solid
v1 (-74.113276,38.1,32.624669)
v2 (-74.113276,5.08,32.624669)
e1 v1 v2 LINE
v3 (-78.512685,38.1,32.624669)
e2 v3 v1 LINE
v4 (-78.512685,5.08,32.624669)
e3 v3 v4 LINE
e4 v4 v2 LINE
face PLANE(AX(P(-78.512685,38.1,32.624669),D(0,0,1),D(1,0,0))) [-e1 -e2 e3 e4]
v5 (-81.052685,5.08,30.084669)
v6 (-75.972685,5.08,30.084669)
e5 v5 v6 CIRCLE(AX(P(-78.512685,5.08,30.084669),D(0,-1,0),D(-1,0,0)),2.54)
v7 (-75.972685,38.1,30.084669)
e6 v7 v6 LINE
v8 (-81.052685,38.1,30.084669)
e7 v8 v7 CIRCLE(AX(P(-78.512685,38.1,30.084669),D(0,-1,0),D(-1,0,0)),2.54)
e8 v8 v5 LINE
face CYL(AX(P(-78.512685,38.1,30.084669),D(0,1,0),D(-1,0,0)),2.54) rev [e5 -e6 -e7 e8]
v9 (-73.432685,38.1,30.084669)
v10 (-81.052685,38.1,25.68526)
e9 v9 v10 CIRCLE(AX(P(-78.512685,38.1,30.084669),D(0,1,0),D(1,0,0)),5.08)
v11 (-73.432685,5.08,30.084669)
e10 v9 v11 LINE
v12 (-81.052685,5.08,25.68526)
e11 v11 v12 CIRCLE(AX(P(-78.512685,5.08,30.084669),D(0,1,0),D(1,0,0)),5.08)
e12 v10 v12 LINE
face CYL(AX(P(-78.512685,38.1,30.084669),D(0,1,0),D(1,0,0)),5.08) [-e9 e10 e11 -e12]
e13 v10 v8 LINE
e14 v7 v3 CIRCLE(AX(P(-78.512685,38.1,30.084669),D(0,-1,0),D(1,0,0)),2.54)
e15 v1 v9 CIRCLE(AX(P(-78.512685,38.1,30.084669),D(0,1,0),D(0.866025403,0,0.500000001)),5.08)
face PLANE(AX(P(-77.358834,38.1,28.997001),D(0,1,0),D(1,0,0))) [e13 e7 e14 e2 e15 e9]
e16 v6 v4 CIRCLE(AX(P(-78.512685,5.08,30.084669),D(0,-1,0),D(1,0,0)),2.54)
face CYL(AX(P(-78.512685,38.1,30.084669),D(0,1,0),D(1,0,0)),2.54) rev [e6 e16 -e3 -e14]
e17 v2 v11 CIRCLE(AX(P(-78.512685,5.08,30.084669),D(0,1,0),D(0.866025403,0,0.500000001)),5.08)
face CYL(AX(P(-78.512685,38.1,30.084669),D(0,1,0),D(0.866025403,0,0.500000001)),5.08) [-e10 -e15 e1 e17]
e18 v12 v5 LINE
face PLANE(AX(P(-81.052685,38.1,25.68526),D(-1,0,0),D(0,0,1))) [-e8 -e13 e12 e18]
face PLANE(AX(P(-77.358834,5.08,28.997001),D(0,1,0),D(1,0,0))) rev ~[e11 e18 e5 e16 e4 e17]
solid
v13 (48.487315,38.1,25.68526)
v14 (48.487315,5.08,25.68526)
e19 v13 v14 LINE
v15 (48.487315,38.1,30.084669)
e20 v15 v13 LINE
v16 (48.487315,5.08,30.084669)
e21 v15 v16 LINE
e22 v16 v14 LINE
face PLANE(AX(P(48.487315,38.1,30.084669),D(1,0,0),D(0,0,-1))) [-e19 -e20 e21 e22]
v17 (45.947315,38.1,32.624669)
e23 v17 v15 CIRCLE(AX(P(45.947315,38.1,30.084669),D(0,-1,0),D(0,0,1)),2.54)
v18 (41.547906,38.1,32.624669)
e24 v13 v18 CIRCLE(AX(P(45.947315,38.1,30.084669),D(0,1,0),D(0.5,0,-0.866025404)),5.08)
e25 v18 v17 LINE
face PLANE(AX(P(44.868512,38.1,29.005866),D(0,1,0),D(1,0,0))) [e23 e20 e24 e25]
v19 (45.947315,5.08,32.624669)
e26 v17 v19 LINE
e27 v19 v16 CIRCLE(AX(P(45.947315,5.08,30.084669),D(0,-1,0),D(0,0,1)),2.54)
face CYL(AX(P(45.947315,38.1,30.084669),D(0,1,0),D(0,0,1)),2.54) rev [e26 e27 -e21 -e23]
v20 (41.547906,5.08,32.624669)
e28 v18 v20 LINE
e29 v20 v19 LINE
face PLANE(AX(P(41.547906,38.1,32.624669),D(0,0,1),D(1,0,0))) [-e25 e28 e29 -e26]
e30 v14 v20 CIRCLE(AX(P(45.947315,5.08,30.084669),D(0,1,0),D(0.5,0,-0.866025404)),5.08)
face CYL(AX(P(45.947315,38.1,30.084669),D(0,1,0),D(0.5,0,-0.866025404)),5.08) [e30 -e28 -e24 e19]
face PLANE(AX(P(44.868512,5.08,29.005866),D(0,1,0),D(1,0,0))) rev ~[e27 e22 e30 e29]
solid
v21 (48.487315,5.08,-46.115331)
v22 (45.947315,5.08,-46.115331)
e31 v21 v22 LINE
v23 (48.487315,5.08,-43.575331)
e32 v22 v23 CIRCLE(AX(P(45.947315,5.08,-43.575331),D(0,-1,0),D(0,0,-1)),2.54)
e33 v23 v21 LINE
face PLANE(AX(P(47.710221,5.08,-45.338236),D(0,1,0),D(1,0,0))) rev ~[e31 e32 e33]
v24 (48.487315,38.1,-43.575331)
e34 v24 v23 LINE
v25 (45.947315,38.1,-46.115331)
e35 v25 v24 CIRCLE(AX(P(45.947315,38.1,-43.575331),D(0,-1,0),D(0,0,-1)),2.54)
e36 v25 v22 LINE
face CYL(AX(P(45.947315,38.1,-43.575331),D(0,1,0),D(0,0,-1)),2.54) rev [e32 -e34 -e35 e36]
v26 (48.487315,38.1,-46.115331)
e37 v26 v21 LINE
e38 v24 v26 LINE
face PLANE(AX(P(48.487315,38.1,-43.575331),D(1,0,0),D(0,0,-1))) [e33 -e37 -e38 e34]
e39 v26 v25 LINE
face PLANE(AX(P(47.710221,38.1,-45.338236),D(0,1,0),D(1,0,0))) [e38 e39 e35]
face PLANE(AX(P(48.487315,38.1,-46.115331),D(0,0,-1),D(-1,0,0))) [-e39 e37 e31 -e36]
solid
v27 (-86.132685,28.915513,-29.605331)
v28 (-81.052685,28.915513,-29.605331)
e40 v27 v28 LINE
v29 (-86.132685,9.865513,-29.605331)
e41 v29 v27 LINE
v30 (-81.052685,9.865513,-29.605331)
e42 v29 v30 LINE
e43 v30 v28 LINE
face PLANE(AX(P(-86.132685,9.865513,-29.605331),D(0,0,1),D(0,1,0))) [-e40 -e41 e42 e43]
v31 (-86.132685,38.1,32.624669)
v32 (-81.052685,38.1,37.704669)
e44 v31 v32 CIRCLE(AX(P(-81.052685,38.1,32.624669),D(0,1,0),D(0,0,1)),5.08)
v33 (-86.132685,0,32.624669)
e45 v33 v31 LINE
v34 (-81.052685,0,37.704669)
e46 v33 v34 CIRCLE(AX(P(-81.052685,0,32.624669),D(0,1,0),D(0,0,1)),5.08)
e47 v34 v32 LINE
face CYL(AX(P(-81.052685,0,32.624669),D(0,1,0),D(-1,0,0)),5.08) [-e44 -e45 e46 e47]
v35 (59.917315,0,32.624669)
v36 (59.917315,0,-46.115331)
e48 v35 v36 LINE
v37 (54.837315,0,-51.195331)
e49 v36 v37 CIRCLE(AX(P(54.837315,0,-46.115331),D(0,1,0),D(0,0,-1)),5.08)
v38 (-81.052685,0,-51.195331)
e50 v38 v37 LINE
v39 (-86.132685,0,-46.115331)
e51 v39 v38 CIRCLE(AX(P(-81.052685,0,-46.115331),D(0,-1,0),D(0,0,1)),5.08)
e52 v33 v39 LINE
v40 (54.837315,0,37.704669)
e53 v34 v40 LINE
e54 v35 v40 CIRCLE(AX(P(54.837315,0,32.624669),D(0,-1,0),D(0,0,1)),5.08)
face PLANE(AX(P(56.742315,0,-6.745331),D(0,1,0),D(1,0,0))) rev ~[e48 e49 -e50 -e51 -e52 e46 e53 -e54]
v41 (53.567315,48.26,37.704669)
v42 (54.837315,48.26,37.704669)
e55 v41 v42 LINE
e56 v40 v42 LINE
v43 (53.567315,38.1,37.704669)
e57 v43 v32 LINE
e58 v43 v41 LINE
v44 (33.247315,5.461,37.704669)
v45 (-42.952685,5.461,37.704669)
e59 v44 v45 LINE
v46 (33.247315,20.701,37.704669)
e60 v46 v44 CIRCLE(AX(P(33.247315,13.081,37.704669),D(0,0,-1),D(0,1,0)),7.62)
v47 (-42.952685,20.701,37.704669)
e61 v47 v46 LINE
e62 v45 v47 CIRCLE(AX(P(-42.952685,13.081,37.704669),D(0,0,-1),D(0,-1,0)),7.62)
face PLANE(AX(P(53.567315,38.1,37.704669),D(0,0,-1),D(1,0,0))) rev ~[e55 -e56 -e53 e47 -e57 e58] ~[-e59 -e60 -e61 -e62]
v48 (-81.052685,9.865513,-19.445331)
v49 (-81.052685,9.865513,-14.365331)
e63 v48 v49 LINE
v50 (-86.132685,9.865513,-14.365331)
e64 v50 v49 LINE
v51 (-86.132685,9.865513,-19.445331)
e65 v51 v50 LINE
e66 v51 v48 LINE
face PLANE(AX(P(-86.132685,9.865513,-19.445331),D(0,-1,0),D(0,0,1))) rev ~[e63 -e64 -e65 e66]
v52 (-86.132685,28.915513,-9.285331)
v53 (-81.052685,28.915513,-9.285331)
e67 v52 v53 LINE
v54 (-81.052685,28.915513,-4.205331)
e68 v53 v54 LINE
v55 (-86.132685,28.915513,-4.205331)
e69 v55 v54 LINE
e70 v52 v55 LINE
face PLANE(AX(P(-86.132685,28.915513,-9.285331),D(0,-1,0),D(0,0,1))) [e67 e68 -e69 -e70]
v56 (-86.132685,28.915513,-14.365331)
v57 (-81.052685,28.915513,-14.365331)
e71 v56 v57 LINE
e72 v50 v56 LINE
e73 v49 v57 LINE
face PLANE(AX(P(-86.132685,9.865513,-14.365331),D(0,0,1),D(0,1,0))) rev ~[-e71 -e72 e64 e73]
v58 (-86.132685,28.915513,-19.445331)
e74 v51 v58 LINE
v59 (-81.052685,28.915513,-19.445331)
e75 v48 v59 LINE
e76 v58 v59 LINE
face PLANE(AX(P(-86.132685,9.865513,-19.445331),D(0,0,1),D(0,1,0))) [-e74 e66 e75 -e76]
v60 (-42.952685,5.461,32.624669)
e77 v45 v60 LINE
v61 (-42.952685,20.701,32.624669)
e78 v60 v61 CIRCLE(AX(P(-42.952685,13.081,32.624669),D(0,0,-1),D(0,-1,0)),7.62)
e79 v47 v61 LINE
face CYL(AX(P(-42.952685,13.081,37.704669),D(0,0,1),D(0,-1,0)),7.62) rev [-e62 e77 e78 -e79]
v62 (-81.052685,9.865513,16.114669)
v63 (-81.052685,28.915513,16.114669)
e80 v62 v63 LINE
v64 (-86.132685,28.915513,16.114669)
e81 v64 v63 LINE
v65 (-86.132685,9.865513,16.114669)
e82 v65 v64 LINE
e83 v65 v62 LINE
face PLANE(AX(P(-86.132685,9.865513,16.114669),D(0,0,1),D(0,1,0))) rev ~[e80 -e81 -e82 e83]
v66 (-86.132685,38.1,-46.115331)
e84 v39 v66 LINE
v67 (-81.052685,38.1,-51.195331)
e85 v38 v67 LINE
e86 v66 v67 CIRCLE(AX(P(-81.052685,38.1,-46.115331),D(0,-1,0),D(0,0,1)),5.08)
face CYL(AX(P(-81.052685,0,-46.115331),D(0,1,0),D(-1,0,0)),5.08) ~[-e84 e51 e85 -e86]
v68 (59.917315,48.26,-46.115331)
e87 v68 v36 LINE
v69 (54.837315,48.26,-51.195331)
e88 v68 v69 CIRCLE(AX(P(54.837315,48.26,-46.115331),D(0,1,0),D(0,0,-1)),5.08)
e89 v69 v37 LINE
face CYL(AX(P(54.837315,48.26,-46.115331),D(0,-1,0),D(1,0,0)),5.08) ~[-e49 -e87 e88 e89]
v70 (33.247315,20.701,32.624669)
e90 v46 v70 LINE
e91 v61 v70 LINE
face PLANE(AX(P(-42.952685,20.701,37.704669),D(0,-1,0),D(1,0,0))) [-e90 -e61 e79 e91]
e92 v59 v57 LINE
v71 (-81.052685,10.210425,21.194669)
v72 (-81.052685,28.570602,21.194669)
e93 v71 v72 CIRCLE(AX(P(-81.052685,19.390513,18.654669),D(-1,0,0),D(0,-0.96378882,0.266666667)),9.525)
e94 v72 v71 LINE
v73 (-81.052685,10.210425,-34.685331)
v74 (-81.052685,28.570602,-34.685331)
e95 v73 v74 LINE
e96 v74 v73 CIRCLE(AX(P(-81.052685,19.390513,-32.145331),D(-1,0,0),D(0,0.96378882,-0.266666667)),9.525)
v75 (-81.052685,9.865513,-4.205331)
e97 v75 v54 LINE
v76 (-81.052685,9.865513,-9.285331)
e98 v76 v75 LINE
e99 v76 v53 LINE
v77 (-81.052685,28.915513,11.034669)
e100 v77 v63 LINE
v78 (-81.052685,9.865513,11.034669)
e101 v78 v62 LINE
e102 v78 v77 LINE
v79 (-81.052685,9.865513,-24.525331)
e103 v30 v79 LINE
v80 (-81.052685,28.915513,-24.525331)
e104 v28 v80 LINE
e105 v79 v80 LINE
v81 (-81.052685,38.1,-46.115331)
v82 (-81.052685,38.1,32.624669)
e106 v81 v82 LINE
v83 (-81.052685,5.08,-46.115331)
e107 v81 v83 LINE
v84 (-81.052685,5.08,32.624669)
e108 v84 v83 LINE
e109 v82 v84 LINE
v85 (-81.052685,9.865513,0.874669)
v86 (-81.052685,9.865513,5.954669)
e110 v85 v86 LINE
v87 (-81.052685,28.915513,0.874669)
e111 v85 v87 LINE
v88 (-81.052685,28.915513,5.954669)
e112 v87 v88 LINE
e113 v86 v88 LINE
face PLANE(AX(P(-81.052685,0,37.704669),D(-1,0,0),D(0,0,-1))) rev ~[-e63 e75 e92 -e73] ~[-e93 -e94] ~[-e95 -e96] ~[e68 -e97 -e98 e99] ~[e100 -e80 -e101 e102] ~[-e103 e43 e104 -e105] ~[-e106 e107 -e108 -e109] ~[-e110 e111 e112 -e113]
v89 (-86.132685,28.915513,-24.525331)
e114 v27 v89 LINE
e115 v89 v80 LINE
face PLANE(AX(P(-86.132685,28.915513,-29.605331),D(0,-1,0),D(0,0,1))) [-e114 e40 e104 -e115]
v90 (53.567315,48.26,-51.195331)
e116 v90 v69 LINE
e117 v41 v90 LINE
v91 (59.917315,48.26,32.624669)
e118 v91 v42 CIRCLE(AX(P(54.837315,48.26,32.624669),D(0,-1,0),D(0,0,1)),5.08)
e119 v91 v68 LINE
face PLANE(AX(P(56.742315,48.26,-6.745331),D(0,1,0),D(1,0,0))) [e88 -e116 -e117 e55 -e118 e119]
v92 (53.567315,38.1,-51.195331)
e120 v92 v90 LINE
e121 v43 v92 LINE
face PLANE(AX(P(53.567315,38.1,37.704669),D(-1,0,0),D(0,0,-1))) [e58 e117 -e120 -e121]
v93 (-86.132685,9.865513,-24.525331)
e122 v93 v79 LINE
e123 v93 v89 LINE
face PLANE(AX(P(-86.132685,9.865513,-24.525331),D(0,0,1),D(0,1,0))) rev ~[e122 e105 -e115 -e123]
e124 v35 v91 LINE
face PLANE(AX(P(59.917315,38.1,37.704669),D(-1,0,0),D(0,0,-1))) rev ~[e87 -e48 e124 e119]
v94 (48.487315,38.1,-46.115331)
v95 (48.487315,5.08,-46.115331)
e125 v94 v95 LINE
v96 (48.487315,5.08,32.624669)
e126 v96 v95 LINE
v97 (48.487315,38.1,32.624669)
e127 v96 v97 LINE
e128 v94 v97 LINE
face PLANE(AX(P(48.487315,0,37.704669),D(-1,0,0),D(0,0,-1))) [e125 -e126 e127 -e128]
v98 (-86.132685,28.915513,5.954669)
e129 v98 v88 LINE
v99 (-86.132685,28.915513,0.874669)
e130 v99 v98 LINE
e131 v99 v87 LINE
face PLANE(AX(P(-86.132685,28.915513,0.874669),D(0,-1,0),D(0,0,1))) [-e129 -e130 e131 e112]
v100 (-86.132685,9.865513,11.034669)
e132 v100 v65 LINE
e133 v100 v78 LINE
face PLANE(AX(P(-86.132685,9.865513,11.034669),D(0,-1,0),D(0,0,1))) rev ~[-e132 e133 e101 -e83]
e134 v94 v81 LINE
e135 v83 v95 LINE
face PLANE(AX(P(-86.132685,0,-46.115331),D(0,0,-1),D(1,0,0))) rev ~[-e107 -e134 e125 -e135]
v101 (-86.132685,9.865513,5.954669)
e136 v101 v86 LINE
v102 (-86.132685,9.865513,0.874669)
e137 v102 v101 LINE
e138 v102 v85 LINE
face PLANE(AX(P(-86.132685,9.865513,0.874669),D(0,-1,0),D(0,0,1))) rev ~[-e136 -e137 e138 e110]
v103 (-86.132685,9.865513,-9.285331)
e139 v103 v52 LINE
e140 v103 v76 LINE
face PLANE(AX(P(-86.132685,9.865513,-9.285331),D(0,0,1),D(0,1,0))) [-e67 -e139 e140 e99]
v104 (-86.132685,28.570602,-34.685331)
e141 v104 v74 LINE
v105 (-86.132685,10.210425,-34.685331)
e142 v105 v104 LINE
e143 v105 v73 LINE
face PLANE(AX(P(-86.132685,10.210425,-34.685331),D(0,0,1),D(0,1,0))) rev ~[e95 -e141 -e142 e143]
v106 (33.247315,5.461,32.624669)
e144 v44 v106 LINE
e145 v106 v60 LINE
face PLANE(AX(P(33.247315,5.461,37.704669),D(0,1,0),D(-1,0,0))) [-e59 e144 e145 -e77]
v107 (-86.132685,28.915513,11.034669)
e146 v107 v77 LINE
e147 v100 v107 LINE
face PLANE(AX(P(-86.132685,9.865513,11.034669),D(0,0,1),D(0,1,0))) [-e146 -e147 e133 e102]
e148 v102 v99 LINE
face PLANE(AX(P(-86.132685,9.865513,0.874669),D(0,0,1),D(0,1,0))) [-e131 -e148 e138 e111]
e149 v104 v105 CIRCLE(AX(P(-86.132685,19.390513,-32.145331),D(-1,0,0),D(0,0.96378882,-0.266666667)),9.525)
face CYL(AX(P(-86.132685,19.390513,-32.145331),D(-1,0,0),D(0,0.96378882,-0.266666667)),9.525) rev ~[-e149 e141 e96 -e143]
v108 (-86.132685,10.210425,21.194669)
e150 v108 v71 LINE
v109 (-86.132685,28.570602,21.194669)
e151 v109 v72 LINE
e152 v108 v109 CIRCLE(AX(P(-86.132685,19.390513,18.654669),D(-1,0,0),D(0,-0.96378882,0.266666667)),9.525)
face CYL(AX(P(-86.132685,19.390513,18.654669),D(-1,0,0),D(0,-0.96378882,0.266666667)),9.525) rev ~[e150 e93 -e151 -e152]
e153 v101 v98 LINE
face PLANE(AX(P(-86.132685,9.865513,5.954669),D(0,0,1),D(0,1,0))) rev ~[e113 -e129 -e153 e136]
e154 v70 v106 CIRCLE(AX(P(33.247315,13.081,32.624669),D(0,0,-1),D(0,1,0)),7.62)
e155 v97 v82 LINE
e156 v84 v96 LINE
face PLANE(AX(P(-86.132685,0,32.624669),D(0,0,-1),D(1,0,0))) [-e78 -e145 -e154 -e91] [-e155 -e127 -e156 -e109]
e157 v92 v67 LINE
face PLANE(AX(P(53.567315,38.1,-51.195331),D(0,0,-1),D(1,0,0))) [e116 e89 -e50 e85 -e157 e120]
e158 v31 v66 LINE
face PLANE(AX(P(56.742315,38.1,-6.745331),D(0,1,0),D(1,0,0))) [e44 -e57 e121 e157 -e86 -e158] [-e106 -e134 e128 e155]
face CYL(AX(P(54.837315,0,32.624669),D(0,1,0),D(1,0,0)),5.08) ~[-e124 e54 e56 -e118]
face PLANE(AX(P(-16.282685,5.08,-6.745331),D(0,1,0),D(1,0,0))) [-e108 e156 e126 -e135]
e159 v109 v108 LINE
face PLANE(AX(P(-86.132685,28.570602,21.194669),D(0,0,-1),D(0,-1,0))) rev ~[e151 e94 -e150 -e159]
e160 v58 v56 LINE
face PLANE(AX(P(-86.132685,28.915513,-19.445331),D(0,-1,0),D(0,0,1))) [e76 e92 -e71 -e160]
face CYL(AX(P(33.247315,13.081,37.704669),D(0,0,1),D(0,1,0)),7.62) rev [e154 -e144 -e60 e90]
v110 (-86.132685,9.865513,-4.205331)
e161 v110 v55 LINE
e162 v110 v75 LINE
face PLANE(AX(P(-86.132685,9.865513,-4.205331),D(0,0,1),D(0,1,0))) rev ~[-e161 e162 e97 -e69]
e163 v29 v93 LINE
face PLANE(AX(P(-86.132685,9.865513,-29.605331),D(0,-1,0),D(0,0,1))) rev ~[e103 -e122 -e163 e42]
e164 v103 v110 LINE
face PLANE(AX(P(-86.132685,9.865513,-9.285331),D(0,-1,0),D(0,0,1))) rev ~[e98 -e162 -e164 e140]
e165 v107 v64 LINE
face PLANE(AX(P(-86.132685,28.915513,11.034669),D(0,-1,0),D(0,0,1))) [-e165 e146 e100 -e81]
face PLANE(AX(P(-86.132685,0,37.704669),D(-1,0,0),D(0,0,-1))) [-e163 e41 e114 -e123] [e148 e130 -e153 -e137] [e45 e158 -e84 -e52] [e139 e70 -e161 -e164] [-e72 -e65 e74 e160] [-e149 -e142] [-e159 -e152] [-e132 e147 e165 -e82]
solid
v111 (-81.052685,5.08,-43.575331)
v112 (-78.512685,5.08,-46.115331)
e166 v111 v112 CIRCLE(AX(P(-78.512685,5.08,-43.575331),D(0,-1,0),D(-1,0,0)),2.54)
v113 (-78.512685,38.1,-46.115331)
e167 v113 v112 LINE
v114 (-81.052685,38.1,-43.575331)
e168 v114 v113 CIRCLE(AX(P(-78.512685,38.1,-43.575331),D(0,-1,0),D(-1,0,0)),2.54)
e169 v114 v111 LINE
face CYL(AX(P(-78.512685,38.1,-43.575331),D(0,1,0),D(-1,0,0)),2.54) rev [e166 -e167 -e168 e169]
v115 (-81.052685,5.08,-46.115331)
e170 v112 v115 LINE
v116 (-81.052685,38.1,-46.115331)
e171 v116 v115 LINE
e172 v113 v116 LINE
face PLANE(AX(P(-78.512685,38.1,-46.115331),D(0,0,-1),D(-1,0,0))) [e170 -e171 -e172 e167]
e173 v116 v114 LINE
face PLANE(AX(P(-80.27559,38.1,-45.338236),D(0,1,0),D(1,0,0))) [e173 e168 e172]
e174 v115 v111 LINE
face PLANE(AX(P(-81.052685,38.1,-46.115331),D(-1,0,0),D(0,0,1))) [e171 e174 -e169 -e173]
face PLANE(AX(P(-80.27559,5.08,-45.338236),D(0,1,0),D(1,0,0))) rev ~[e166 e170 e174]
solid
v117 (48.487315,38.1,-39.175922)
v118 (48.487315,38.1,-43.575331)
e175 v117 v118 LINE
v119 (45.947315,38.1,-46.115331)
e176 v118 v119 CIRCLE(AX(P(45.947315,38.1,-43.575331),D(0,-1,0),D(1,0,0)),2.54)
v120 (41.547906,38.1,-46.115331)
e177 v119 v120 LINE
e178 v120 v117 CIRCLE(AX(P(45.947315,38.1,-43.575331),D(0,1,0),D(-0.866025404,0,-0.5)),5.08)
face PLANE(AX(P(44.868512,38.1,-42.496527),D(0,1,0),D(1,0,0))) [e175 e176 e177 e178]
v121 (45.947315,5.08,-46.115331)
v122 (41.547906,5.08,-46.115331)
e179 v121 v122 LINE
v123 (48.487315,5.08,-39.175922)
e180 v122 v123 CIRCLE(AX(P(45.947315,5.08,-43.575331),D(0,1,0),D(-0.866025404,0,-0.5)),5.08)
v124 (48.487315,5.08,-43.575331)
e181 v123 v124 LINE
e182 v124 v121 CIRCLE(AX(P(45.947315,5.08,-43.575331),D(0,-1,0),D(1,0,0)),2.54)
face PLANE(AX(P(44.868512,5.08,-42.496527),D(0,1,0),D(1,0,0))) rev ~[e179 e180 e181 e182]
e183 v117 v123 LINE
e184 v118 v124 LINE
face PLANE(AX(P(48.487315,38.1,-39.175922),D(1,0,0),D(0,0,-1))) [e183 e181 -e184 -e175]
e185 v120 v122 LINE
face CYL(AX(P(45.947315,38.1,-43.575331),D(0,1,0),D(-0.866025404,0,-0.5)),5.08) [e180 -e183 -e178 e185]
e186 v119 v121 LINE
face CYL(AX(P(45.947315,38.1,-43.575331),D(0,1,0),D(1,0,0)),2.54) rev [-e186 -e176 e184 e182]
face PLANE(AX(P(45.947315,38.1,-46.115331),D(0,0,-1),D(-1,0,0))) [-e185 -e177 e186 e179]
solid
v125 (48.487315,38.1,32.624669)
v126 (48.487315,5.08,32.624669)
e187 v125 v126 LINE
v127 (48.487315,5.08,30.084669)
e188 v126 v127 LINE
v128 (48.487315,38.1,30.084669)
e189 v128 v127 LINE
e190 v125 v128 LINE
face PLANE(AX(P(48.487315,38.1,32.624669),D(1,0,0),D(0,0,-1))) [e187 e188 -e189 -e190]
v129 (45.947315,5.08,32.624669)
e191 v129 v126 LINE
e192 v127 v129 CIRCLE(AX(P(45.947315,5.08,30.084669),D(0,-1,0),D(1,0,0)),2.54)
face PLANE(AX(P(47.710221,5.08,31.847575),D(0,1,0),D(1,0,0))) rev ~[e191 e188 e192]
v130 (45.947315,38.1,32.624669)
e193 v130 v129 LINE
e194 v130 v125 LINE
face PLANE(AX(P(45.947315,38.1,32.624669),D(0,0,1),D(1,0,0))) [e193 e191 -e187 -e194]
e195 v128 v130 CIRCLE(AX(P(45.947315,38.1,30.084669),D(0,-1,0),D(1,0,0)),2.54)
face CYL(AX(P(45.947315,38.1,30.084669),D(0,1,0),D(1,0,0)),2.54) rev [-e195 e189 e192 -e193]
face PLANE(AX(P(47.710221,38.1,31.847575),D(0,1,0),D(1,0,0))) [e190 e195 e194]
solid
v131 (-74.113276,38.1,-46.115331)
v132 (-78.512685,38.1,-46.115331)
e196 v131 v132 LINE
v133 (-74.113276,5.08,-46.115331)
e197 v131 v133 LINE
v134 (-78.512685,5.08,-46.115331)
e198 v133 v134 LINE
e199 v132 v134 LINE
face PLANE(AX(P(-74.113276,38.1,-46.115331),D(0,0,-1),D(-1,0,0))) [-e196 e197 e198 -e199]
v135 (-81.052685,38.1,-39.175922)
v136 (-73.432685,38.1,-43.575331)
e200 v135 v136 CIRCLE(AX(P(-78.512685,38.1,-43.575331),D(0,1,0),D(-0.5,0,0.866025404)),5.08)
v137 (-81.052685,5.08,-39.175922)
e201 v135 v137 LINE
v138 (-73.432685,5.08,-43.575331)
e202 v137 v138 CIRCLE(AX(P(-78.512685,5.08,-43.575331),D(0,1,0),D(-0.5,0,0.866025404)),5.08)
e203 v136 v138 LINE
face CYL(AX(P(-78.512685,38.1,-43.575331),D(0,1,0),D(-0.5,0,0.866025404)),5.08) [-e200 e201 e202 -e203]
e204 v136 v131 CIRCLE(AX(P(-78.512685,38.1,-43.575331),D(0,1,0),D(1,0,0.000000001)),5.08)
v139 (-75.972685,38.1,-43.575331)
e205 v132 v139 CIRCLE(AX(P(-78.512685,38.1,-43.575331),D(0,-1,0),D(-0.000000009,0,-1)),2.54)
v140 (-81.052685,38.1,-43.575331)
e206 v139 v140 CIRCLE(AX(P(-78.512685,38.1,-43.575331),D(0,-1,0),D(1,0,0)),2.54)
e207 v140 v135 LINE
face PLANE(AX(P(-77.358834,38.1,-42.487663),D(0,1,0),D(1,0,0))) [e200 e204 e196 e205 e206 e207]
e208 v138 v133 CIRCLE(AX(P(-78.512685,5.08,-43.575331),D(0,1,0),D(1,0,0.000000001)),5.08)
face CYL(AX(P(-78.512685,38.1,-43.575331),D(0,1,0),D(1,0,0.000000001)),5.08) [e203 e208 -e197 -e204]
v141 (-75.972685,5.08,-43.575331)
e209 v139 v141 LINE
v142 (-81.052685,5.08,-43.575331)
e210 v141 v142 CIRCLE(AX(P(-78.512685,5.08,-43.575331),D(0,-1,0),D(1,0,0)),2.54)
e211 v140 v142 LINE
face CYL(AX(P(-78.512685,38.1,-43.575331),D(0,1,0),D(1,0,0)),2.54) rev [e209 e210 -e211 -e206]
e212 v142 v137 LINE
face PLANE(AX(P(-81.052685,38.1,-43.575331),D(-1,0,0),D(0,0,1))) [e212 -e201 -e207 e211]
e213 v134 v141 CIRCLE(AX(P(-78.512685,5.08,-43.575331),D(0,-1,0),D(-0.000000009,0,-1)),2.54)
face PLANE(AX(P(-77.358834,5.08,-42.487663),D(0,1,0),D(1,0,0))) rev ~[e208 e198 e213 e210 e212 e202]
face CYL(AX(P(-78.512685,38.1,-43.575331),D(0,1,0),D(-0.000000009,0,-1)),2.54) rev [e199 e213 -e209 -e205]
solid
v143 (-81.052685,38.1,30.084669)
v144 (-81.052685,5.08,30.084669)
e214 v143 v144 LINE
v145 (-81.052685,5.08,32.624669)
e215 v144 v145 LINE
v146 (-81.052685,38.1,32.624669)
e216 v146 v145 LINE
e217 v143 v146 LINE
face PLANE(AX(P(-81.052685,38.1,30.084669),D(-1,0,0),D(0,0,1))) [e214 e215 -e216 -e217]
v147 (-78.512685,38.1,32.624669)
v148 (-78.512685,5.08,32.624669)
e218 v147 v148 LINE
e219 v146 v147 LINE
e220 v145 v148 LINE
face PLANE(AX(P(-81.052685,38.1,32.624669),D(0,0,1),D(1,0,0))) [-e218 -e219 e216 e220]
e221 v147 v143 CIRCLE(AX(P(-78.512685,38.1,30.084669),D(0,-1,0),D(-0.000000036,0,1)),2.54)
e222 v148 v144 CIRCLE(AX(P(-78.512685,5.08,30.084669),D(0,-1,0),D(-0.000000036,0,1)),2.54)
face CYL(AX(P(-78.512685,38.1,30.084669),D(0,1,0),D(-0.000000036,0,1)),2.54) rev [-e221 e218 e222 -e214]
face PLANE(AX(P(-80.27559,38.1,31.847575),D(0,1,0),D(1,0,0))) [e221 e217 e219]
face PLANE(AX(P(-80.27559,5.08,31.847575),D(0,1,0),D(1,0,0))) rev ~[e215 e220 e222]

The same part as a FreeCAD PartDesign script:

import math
import FreeCAD as App
import Part
import Sketcher
from FreeCAD import Vector
Q = App.Units.Quantity


def edges_at(feature, points):
    """Names of the edges that pass closest to the given points."""
    edges = feature.Shape.Edges
    near = lambda p: min(range(len(edges)), key=lambda i: edges[i].distToShape(Part.Vertex(*p))[0])
    return sorted({f"Edge{near(p) + 1}" for p in points})


def faces_at(feature, points):
    """Names of the faces that lie closest to the given points."""
    faces = feature.Shape.Faces
    near = lambda p: min(range(len(faces)), key=lambda i: faces[i].distToShape(Part.Vertex(*p))[0])
    return sorted({f"Face{near(p) + 1}" for p in points})

doc = App.newDocument("Part")
body = doc.addObject("PartDesign::Body", "Body")

sketch1 = body.newObject("Sketcher::SketchObject", "Sketch")
sketch1.AttachmentSupport = (doc.getObject("XZ_Plane"), [""])
sketch1.MapMode = "FlatFace"
sketch1.addGeometry([
    Part.LineSegment(Vector(-86.132685, -51.195331, 0), Vector(-86.132685, 37.704669, 0)),
    Part.LineSegment(Vector(-86.132685, 37.704669, 0), Vector(53.567315, 37.704669, 0)),
    Part.LineSegment(Vector(53.567315, 37.704669, 0), Vector(53.567315, -51.195331, 0)),
    Part.LineSegment(Vector(53.567315, -51.195331, 0), Vector(-86.132685, -51.195331, 0)),
], False)
sketch1.addConstraint([
    Sketcher.Constraint("Coincident", 0, 2, 1, 1),
    Sketcher.Constraint("Coincident", 1, 2, 2, 1),
    Sketcher.Constraint("Coincident", 2, 2, 3, 1),
    Sketcher.Constraint("Coincident", 3, 2, 0, 1),
    Sketcher.Constraint("Vertical", 0),
    Sketcher.Constraint("Horizontal", 1),
    Sketcher.Constraint("Vertical", 2),
    Sketcher.Constraint("Horizontal", 3),
    Sketcher.Constraint("DistanceX", 1, 1, 1, 2, Q("5.5 in")),
    Sketcher.Constraint("DistanceY", 0, 1, 0, 2, Q("3.5 in")),
    Sketcher.Constraint("DistanceY", -1, 1, 0, 2, 37.704669),
    Sketcher.Constraint("DistanceX", 0, 2, -1, 1, 86.132685),
])
pad1 = body.newObject("PartDesign::Pad", "Pad")
pad1.Profile = sketch1
pad1.Length = Q("1.5 in")
pad1.Reversed = True
doc.recompute()

thickness = body.newObject("PartDesign::Thickness", "Thickness")
thickness.Base = (pad1, faces_at(pad1, [(-16.283, 38.1, -6.745)]))
thickness.Value = Q("0.2 in")
thickness.Reversed = True
thickness.Join = "Intersection"

sketch2 = body.newObject("Sketcher::SketchObject", "Sketch001")
sketch2.AttachmentSupport = (doc.getObject("YZ_Plane"), [""])
sketch2.MapMode = "FlatFace"
sketch2.AttachmentOffset = App.Placement(Vector(0, 0, -86.132685), App.Rotation())
sketch2.addGeometry([
    Part.LineSegment(Vector(10.210425, -34.685331, 0), Vector(28.570602, -34.685331, 0)),
    Part.ArcOfCircle(Part.Circle(Vector(19.390513, -32.145331, 0), Vector(0, 0, 1), 9.525), math.radians(-164.53399), math.radians(-15.46601)),
    Part.LineSegment(Vector(28.915513, -29.605331, 0), Vector(9.865513, -29.605331, 0)),
    Part.LineSegment(Vector(9.865513, -29.605331, 0), Vector(9.865513, -24.525331, 0)),
    Part.LineSegment(Vector(9.865513, -24.525331, 0), Vector(28.915513, -24.525331, 0)),
    Part.LineSegment(Vector(28.915513, -24.525331, 0), Vector(28.915513, -29.605331, 0)),
    Part.LineSegment(Vector(28.915513, -19.445331, 0), Vector(9.865513, -19.445331, 0)),
    Part.LineSegment(Vector(9.865513, -19.445331, 0), Vector(9.865513, -14.365331, 0)),
    Part.LineSegment(Vector(9.865513, -14.365331, 0), Vector(28.915513, -14.365331, 0)),
    Part.LineSegment(Vector(28.915513, -14.365331, 0), Vector(28.915513, -19.445331, 0)),
    Part.LineSegment(Vector(28.915513, -9.285331, 0), Vector(9.865513, -9.285331, 0)),
    Part.LineSegment(Vector(9.865513, -9.285331, 0), Vector(9.865513, -4.205331, 0)),
    Part.LineSegment(Vector(9.865513, -4.205331, 0), Vector(28.915513, -4.205331, 0)),
    Part.LineSegment(Vector(28.915513, -4.205331, 0), Vector(28.915513, -9.285331, 0)),
    Part.LineSegment(Vector(28.915513, 0.874669, 0), Vector(9.865513, 0.874669, 0)),
    Part.LineSegment(Vector(9.865513, 0.874669, 0), Vector(9.865513, 5.954669, 0)),
    Part.LineSegment(Vector(9.865513, 5.954669, 0), Vector(28.915513, 5.954669, 0)),
    Part.LineSegment(Vector(28.915513, 5.954669, 0), Vector(28.915513, 0.874669, 0)),
    Part.LineSegment(Vector(28.915513, 11.034669, 0), Vector(9.865513, 11.034669, 0)),
    Part.LineSegment(Vector(9.865513, 11.034669, 0), Vector(9.865513, 16.114669, 0)),
    Part.LineSegment(Vector(9.865513, 16.114669, 0), Vector(28.915513, 16.114669, 0)),
    Part.LineSegment(Vector(28.915513, 16.114669, 0), Vector(28.915513, 11.034669, 0)),
    Part.ArcOfCircle(Part.Circle(Vector(19.390513, 18.654669, 0), Vector(0, 0, 1), 9.525), math.radians(15.46601), math.radians(164.53399)),
    Part.LineSegment(Vector(28.570602, 21.194669, 0), Vector(10.210425, 21.194669, 0)),
], False)
sketch2.addConstraint([
    Sketcher.Constraint("Coincident", 0, 1, 1, 1),
    Sketcher.Constraint("Coincident", 1, 2, 0, 2),
    Sketcher.Constraint("Coincident", 2, 2, 3, 1),
    Sketcher.Constraint("Coincident", 3, 2, 4, 1),
    Sketcher.Constraint("Coincident", 4, 2, 5, 1),
    Sketcher.Constraint("Coincident", 5, 2, 2, 1),
    Sketcher.Constraint("Coincident", 6, 2, 7, 1),
    Sketcher.Constraint("Coincident", 7, 2, 8, 1),
    Sketcher.Constraint("Coincident", 8, 2, 9, 1),
    Sketcher.Constraint("Coincident", 9, 2, 6, 1),
    Sketcher.Constraint("Coincident", 10, 2, 11, 1),
    Sketcher.Constraint("Coincident", 11, 2, 12, 1),
    Sketcher.Constraint("Coincident", 12, 2, 13, 1),
    Sketcher.Constraint("Coincident", 13, 2, 10, 1),
    Sketcher.Constraint("Coincident", 14, 2, 15, 1),
    Sketcher.Constraint("Coincident", 15, 2, 16, 1),
    Sketcher.Constraint("Coincident", 16, 2, 17, 1),
    Sketcher.Constraint("Coincident", 17, 2, 14, 1),
    Sketcher.Constraint("Coincident", 18, 2, 19, 1),
    Sketcher.Constraint("Coincident", 19, 2, 20, 1),
    Sketcher.Constraint("Coincident", 20, 2, 21, 1),
    Sketcher.Constraint("Coincident", 21, 2, 18, 1),
    Sketcher.Constraint("Coincident", 22, 1, 23, 1),
    Sketcher.Constraint("Coincident", 23, 2, 22, 2),
    Sketcher.Constraint("Horizontal", 0),
    Sketcher.Constraint("Horizontal", 2),
    Sketcher.Constraint("Vertical", 3),
    Sketcher.Constraint("Horizontal", 4),
    Sketcher.Constraint("Vertical", 5),
    Sketcher.Constraint("Horizontal", 6),
    Sketcher.Constraint("Vertical", 7),
    Sketcher.Constraint("Horizontal", 8),
    Sketcher.Constraint("Vertical", 9),
    Sketcher.Constraint("Horizontal", 10),
    Sketcher.Constraint("Vertical", 11),
    Sketcher.Constraint("Horizontal", 12),
    Sketcher.Constraint("Vertical", 13),
    Sketcher.Constraint("Horizontal", 14),
    Sketcher.Constraint("Vertical", 15),
    Sketcher.Constraint("Horizontal", 16),
    Sketcher.Constraint("Vertical", 17),
    Sketcher.Constraint("Horizontal", 18),
    Sketcher.Constraint("Vertical", 19),
    Sketcher.Constraint("Horizontal", 20),
    Sketcher.Constraint("Vertical", 21),
    Sketcher.Constraint("Horizontal", 23),
    Sketcher.Constraint("Equal", 1, 22),
    Sketcher.Constraint("Vertical", 1, 3, 22, 3),
    Sketcher.Constraint("Vertical", 3, 2, 6, 2),
    Sketcher.Constraint("Vertical", 5, 2, 8, 2),
    Sketcher.Constraint("Vertical", 7, 2, 10, 2),
    Sketcher.Constraint("Vertical", 9, 2, 12, 2),
    Sketcher.Constraint("Vertical", 11, 2, 14, 2),
    Sketcher.Constraint("Vertical", 13, 2, 16, 2),
    Sketcher.Constraint("Vertical", 15, 2, 18, 2),
    Sketcher.Constraint("Vertical", 17, 2, 20, 2),
    Sketcher.Constraint("Vertical", 1, 2, 22, 1),
    Sketcher.Constraint("Equal", 5, 7),
    Sketcher.Constraint("Equal", 9, 11),
    Sketcher.Constraint("Equal", 13, 15),
    Sketcher.Constraint("Equal", 17, 19),
    Sketcher.Constraint("DistanceY", 3, 1, 3, 2, Q("0.2 in")),
    Sketcher.Constraint("Radius", 1, Q("0.375 in")),
    Sketcher.Constraint("DistanceY", 1, 3, 22, 3, Q("2 in")),
    Sketcher.Constraint("DistanceX", 2, 2, 2, 1, Q("0.75 in")),
    Sketcher.Constraint("DistanceY", 0, 1, 1, 3, Q("0.1 in")),
    Sketcher.Constraint("DistanceY", 0, 1, 2, 2, Q("0.2 in")),
    Sketcher.Constraint("DistanceY", 3, 2, 6, 2, Q("0.2 in")),
    Sketcher.Constraint("DistanceY", 7, 2, 10, 2, Q("0.2 in")),
    Sketcher.Constraint("DistanceY", 11, 2, 14, 2, Q("0.2 in")),
    Sketcher.Constraint("DistanceY", 15, 2, 18, 2, Q("0.2 in")),
    Sketcher.Constraint("DistanceX", 2, 2, 1, 3, Q("0.375 in")),
    Sketcher.Constraint("DistanceX", -1, 1, 1, 2, 28.570602),
    Sketcher.Constraint("DistanceY", 1, 3, -1, 1, 32.145331),
])
pocket1 = body.newObject("PartDesign::Pocket", "Pocket")
pocket1.Profile = sketch2
pocket1.Length = Q("0.2 in")
pocket1.Reversed = True

sketch3 = body.newObject("Sketcher::SketchObject", "Sketch002")
sketch3.AttachmentSupport = (doc.getObject("XY_Plane"), [""])
sketch3.MapMode = "FlatFace"
sketch3.AttachmentOffset = App.Placement(Vector(0, 0, 37.704669), App.Rotation())
sketch3.addGeometry([
    Part.LineSegment(Vector(-42.952685, 5.461, 0), Vector(33.247315, 5.461, 0)),
    Part.ArcOfCircle(Part.Circle(Vector(33.247315, 13.081, 0), Vector(0, 0, 1), 7.62), math.radians(-90), math.radians(90)),
    Part.LineSegment(Vector(33.247315, 20.701, 0), Vector(-42.952685, 20.701, 0)),
    Part.ArcOfCircle(Part.Circle(Vector(-42.952685, 13.081, 0), Vector(0, 0, 1), 7.62), math.radians(90), math.radians(270)),
], False)
sketch3.addConstraint([
    Sketcher.Constraint("Tangent", 0, 2, 1, 1),
    Sketcher.Constraint("Tangent", 1, 2, 2, 1),
    Sketcher.Constraint("Tangent", 2, 2, 3, 1),
    Sketcher.Constraint("Tangent", 3, 2, 0, 1),
    Sketcher.Constraint("Horizontal", 0),
    Sketcher.Constraint("Horizontal", 2),
    Sketcher.Constraint("Radius", 1, Q("0.3 in")),
    Sketcher.Constraint("DistanceX", 0, 1, 0, 2, Q("3 in")),
    Sketcher.Constraint("DistanceY", -1, 1, 1, 3, Q("0.515 in")),
    Sketcher.Constraint("DistanceX", -1, 1, 1, 3, 33.247315),
])
pocket2 = body.newObject("PartDesign::Pocket", "Pocket001")
pocket2.Profile = sketch3
pocket2.Length = Q("0.2 in")

sketch4 = body.newObject("Sketcher::SketchObject", "Sketch003")
sketch4.AttachmentSupport = (doc.getObject("XZ_Plane"), [""])
sketch4.MapMode = "FlatFace"
sketch4.AttachmentOffset = App.Placement(Vector(0, 0, -1.5 * 25.4), App.Rotation())
sketch4.addGeometry([
    Part.LineSegment(Vector(53.567315, -51.195331, 0), Vector(53.567315, 37.704669, 0)),
    Part.LineSegment(Vector(53.567315, 37.704669, 0), Vector(59.917315, 37.704669, 0)),
    Part.LineSegment(Vector(59.917315, 37.704669, 0), Vector(59.917315, -51.195331, 0)),
    Part.LineSegment(Vector(59.917315, -51.195331, 0), Vector(53.567315, -51.195331, 0)),
], False)
sketch4.addConstraint([
    Sketcher.Constraint("Coincident", 0, 2, 1, 1),
    Sketcher.Constraint("Coincident", 1, 2, 2, 1),
    Sketcher.Constraint("Coincident", 2, 2, 3, 1),
    Sketcher.Constraint("Coincident", 3, 2, 0, 1),
    Sketcher.Constraint("Vertical", 0),
    Sketcher.Constraint("Horizontal", 1),
    Sketcher.Constraint("Vertical", 2),
    Sketcher.Constraint("Horizontal", 3),
    Sketcher.Constraint("DistanceY", 0, 1, 0, 2, Q("3.5 in")),
    Sketcher.Constraint("DistanceX", 1, 1, 1, 2, Q("0.25 in")),
    Sketcher.Constraint("DistanceY", -1, 1, 0, 2, 37.704669),
    Sketcher.Constraint("DistanceX", -1, 1, 0, 2, 53.567315),
])
pad2 = body.newObject("PartDesign::Pad", "Pad001")
pad2.Profile = sketch4
pad2.Length = Q("1.5 in")

sketch5 = body.newObject("Sketcher::SketchObject", "Sketch004")
sketch5.AttachmentSupport = (doc.getObject("XZ_Plane"), [""])
sketch5.MapMode = "FlatFace"
sketch5.AttachmentOffset = App.Placement(Vector(0, 0, -1.5 * 25.4), App.Rotation())
sketch5.addGeometry([
    Part.LineSegment(Vector(53.567315, -51.195331, 0), Vector(53.567315, 37.704669, 0)),
    Part.LineSegment(Vector(53.567315, 37.704669, 0), Vector(59.917315, 37.704669, 0)),
    Part.LineSegment(Vector(59.917315, 37.704669, 0), Vector(59.917315, -51.195331, 0)),
    Part.LineSegment(Vector(59.917315, -51.195331, 0), Vector(53.567315, -51.195331, 0)),
], False)
sketch5.addConstraint([
    Sketcher.Constraint("Coincident", 0, 2, 1, 1),
    Sketcher.Constraint("Coincident", 1, 2, 2, 1),
    Sketcher.Constraint("Coincident", 2, 2, 3, 1),
    Sketcher.Constraint("Coincident", 3, 2, 0, 1),
    Sketcher.Constraint("Vertical", 0),
    Sketcher.Constraint("Horizontal", 1),
    Sketcher.Constraint("Vertical", 2),
    Sketcher.Constraint("Horizontal", 3),
    Sketcher.Constraint("DistanceY", 0, 1, 0, 2, Q("3.5 in")),
    Sketcher.Constraint("DistanceX", 1, 1, 1, 2, Q("0.25 in")),
    Sketcher.Constraint("DistanceY", -1, 1, 0, 2, 37.704669),
    Sketcher.Constraint("DistanceX", -1, 1, 0, 2, 53.567315),
])
pad3 = body.newObject("PartDesign::Pad", "Pad002")
pad3.Profile = sketch5
pad3.Length = Q("0.4 in")
pad3.Reversed = True
doc.recompute()

fillet = body.newObject("PartDesign::Fillet", "Fillet")
fillet.Base = (pad3, edges_at(pad3, [
    (59.917, 24.13, -51.195),
    (59.917, 24.13, 37.705),
    (-86.133, 19.05, -51.195),
    (-86.133, 19.05, 37.705),
]))
fillet.Radius = Q("0.2 in")
body2 = doc.addObject("PartDesign::Body", "Body001")

sketch6 = body2.newObject("Sketcher::SketchObject", "Sketch005")
sketch6.AttachmentSupport = (doc.getObject("XZ_Plane001"), [""])
sketch6.MapMode = "FlatFace"
sketch6.AttachmentOffset = App.Placement(Vector(0, 0, -1.5 * 25.4), App.Rotation())
sketch6.addGeometry([
    Part.LineSegment(Vector(48.487315, -46.115331, 0), Vector(45.947315, -46.115331, 0)),
    Part.ArcOfCircle(Part.Circle(Vector(45.947315, -43.575331, 0), Vector(0, 0, 1), 2.54), math.radians(-90), math.radians(0)),
    Part.LineSegment(Vector(48.487315, -43.575331, 0), Vector(48.487315, -46.115331, 0)),
], False)
sketch6.addConstraint([
    Sketcher.Constraint("Tangent", 0, 2, 1, 1),
    Sketcher.Constraint("Tangent", 1, 2, 2, 1),
    Sketcher.Constraint("Coincident", 2, 2, 0, 1),
    Sketcher.Constraint("Horizontal", 0),
    Sketcher.Constraint("Vertical", 2),
    Sketcher.Constraint("Radius", 1, Q("0.1 in")),
    Sketcher.Constraint("DistanceY", 1, 3, -1, 1, 43.575331),
    Sketcher.Constraint("DistanceX", -1, 1, 1, 3, 45.947315),
])
pad4 = body2.newObject("PartDesign::Pad", "Pad003")
pad4.Profile = sketch6
pad4.Length = Q("1.3 in")
body3 = doc.addObject("PartDesign::Body", "Body002")

sketch7 = body3.newObject("Sketcher::SketchObject", "Sketch006")
sketch7.AttachmentSupport = (doc.getObject("XZ_Plane002"), [""])
sketch7.MapMode = "FlatFace"
sketch7.AttachmentOffset = App.Placement(Vector(0, 0, -1.5 * 25.4), App.Rotation())
sketch7.addGeometry([
    Part.LineSegment(Vector(45.947315, -46.115331, 0), Vector(41.547906, -46.115331, 0)),
    Part.ArcOfCircle(Part.Circle(Vector(45.947315, -43.575331, 0), Vector(0, 0, 1), 5.08), math.radians(60), math.radians(210)),
    Part.LineSegment(Vector(48.487315, -39.175922, 0), Vector(48.487315, -43.575331, 0)),
    Part.ArcOfCircle(Part.Circle(Vector(45.947315, -43.575331, 0), Vector(0, 0, 1), 2.54), math.radians(0), math.radians(270)),
], False)
sketch7.addConstraint([
    Sketcher.Constraint("Coincident", 0, 2, 1, 2),
    Sketcher.Constraint("Coincident", 1, 1, 2, 1),
    Sketcher.Constraint("Tangent", 2, 2, 3, 1),
    Sketcher.Constraint("Tangent", 3, 2, 0, 1),
    Sketcher.Constraint("Horizontal", 0),
    Sketcher.Constraint("Vertical", 2),
    Sketcher.Constraint("Coincident", 3, 3, 1, 3),
    Sketcher.Constraint("Radius", 1, Q("0.2 in")),
    Sketcher.Constraint("Radius", 3, Q("0.1 in")),
    Sketcher.Constraint("DistanceY", 1, 3, -1, 1, 43.575331),
    Sketcher.Constraint("DistanceX", -1, 1, 1, 3, 45.947315),
])
pad5 = body3.newObject("PartDesign::Pad", "Pad004")
pad5.Profile = sketch7
pad5.Length = Q("1.3 in")
body4 = doc.addObject("PartDesign::Body", "Body003")

sketch8 = body4.newObject("Sketcher::SketchObject", "Sketch007")
sketch8.AttachmentSupport = (doc.getObject("XZ_Plane003"), [""])
sketch8.MapMode = "FlatFace"
sketch8.AttachmentOffset = App.Placement(Vector(0, 0, -1.5 * 25.4), App.Rotation())
sketch8.addGeometry([
    Part.LineSegment(Vector(48.487315, 32.624669, 0), Vector(48.487315, 30.084669, 0)),
    Part.ArcOfCircle(Part.Circle(Vector(45.947315, 30.084669, 0), Vector(0, 0, 1), 2.54), math.radians(0), math.radians(90)),
    Part.LineSegment(Vector(45.947315, 32.624669, 0), Vector(48.487315, 32.624669, 0)),
], False)
sketch8.addConstraint([
    Sketcher.Constraint("Tangent", 0, 2, 1, 1),
    Sketcher.Constraint("Tangent", 1, 2, 2, 1),
    Sketcher.Constraint("Coincident", 2, 2, 0, 1),
    Sketcher.Constraint("Vertical", 0),
    Sketcher.Constraint("Horizontal", 2),
    Sketcher.Constraint("Radius", 1, Q("0.1 in")),
    Sketcher.Constraint("DistanceY", -1, 1, 1, 3, 30.084669),
    Sketcher.Constraint("DistanceX", -1, 1, 1, 3, 45.947315),
])
pad6 = body4.newObject("PartDesign::Pad", "Pad005")
pad6.Profile = sketch8
pad6.Length = Q("1.3 in")
body5 = doc.addObject("PartDesign::Body", "Body004")

sketch9 = body5.newObject("Sketcher::SketchObject", "Sketch008")
sketch9.AttachmentSupport = (doc.getObject("XZ_Plane004"), [""])
sketch9.MapMode = "FlatFace"
sketch9.AttachmentOffset = App.Placement(Vector(0, 0, -1.5 * 25.4), App.Rotation())
sketch9.addGeometry([
    Part.LineSegment(Vector(48.487315, 30.084669, 0), Vector(48.487315, 25.68526, 0)),
    Part.ArcOfCircle(Part.Circle(Vector(45.947315, 30.084669, 0), Vector(0, 0, 1), 5.08), math.radians(150), math.radians(300)),
    Part.LineSegment(Vector(41.547906, 32.624669, 0), Vector(45.947315, 32.624669, 0)),
    Part.ArcOfCircle(Part.Circle(Vector(45.947315, 30.084669, 0), Vector(0, 0, 1), 2.54), math.radians(90), math.radians(360)),
], False)
sketch9.addConstraint([
    Sketcher.Constraint("Coincident", 0, 2, 1, 2),
    Sketcher.Constraint("Coincident", 1, 1, 2, 1),
    Sketcher.Constraint("Tangent", 2, 2, 3, 1),
    Sketcher.Constraint("Tangent", 3, 2, 0, 1),
    Sketcher.Constraint("Vertical", 0),
    Sketcher.Constraint("Horizontal", 2),
    Sketcher.Constraint("Coincident", 3, 3, 1, 3),
    Sketcher.Constraint("Radius", 1, Q("0.2 in")),
    Sketcher.Constraint("Radius", 3, Q("0.1 in")),
    Sketcher.Constraint("DistanceY", -1, 1, 1, 3, 30.084669),
    Sketcher.Constraint("DistanceX", -1, 1, 1, 3, 45.947315),
])
pad7 = body5.newObject("PartDesign::Pad", "Pad006")
pad7.Profile = sketch9
pad7.Length = Q("1.3 in")
body6 = doc.addObject("PartDesign::Body", "Body005")

sketch10 = body6.newObject("Sketcher::SketchObject", "Sketch009")
sketch10.AttachmentSupport = (doc.getObject("XZ_Plane005"), [""])
sketch10.MapMode = "FlatFace"
sketch10.AttachmentOffset = App.Placement(Vector(0, 0, -1.5 * 25.4), App.Rotation())
sketch10.addGeometry([
    Part.ArcOfCircle(Part.Circle(Vector(-78.512685, 30.084669, 0), Vector(0, 0, 1), 2.54), math.radians(90.000002), math.radians(180)),
    Part.LineSegment(Vector(-81.052685, 30.084669, 0), Vector(-81.052685, 32.624669, 0)),
    Part.LineSegment(Vector(-81.052685, 32.624669, 0), Vector(-78.512685, 32.624669, 0)),
], False)
sketch10.addConstraint([
    Sketcher.Constraint("Tangent", 0, 2, 1, 1),
    Sketcher.Constraint("Coincident", 1, 2, 2, 1),
    Sketcher.Constraint("Tangent", 2, 2, 0, 1),
    Sketcher.Constraint("Vertical", 1),
    Sketcher.Constraint("Horizontal", 2),
    Sketcher.Constraint("Radius", 0, Q("0.1 in")),
    Sketcher.Constraint("DistanceY", -1, 1, 0, 3, 30.084669),
    Sketcher.Constraint("DistanceX", 0, 3, -1, 1, 78.512685),
])
pad8 = body6.newObject("PartDesign::Pad", "Pad007")
pad8.Profile = sketch10
pad8.Length = Q("1.3 in")
body7 = doc.addObject("PartDesign::Body", "Body006")

sketch11 = body7.newObject("Sketcher::SketchObject", "Sketch010")
sketch11.AttachmentSupport = (doc.getObject("XZ_Plane006"), [""])
sketch11.MapMode = "FlatFace"
sketch11.AttachmentOffset = App.Placement(Vector(0, 0, -1.5 * 25.4), App.Rotation())
sketch11.addGeometry([
    Part.ArcOfCircle(Part.Circle(Vector(-78.512685, 30.084669, 0), Vector(0, 0, 1), 5.08), math.radians(-120), math.radians(0)),
    Part.LineSegment(Vector(-81.052685, 25.68526, 0), Vector(-81.052685, 30.084669, 0)),
    Part.ArcOfCircle(Part.Circle(Vector(-78.512685, 30.084669, 0), Vector(0, 0, 1), 2.54), math.radians(180), math.radians(360)),
    Part.ArcOfCircle(Part.Circle(Vector(-78.512685, 30.084669, 0), Vector(0, 0, 1), 2.54), math.radians(0), math.radians(90.000002)),
    Part.LineSegment(Vector(-78.512685, 32.624669, 0), Vector(-74.113276, 32.624669, 0)),
    Part.ArcOfCircle(Part.Circle(Vector(-78.512685, 30.084669, 0), Vector(0, 0, 1), 5.08), math.radians(0), math.radians(30)),
], False)
sketch11.addConstraint([
    Sketcher.Constraint("Coincident", 0, 1, 1, 1),
    Sketcher.Constraint("Tangent", 1, 2, 2, 1),
    Sketcher.Constraint("Tangent", 2, 2, 3, 1),
    Sketcher.Constraint("Tangent", 3, 2, 4, 1),
    Sketcher.Constraint("Coincident", 4, 2, 5, 2),
    Sketcher.Constraint("Tangent", 5, 1, 0, 2),
    Sketcher.Constraint("Vertical", 1),
    Sketcher.Constraint("Horizontal", 4),
    Sketcher.Constraint("Coincident", 2, 3, 0, 3),
    Sketcher.Constraint("Equal", 2, 3),
    Sketcher.Constraint("Equal", 0, 5),
    Sketcher.Constraint("Horizontal", 1, 2, 2, 2),
    Sketcher.Constraint("Horizontal", 2, 2, 5, 1),
    Sketcher.Constraint("Radius", 0, Q("0.2 in")),
    Sketcher.Constraint("Radius", 2, Q("0.1 in")),
    Sketcher.Constraint("DistanceY", -1, 1, 0, 3, 30.084669),
    Sketcher.Constraint("DistanceX", 0, 3, -1, 1, 78.512685),
])
pad9 = body7.newObject("PartDesign::Pad", "Pad008")
pad9.Profile = sketch11
pad9.Length = Q("1.3 in")
body8 = doc.addObject("PartDesign::Body", "Body007")

sketch12 = body8.newObject("Sketcher::SketchObject", "Sketch011")
sketch12.AttachmentSupport = (doc.getObject("XZ_Plane007"), [""])
sketch12.MapMode = "FlatFace"
sketch12.AttachmentOffset = App.Placement(Vector(0, 0, -1.5 * 25.4), App.Rotation())
sketch12.addGeometry([
    Part.ArcOfCircle(Part.Circle(Vector(-78.512685, -43.575331, 0), Vector(0, 0, 1), 2.54), math.radians(180), math.radians(270)),
    Part.LineSegment(Vector(-78.512685, -46.115331, 0), Vector(-81.052685, -46.115331, 0)),
    Part.LineSegment(Vector(-81.052685, -46.115331, 0), Vector(-81.052685, -43.575331, 0)),
], False)
sketch12.addConstraint([
    Sketcher.Constraint("Tangent", 0, 2, 1, 1),
    Sketcher.Constraint("Coincident", 1, 2, 2, 1),
    Sketcher.Constraint("Tangent", 2, 2, 0, 1),
    Sketcher.Constraint("Horizontal", 1),
    Sketcher.Constraint("Vertical", 2),
    Sketcher.Constraint("Radius", 0, Q("0.1 in")),
    Sketcher.Constraint("DistanceY", 0, 3, -1, 1, 43.575331),
    Sketcher.Constraint("DistanceX", 0, 3, -1, 1, 78.512685),
])
pad10 = body8.newObject("PartDesign::Pad", "Pad009")
pad10.Profile = sketch12
pad10.Length = Q("1.3 in")
body9 = doc.addObject("PartDesign::Body", "Body008")

sketch13 = body9.newObject("Sketcher::SketchObject", "Sketch012")
sketch13.AttachmentSupport = (doc.getObject("XZ_Plane008"), [""])
sketch13.MapMode = "FlatFace"
sketch13.AttachmentOffset = App.Placement(Vector(0, 0, -1.5 * 25.4), App.Rotation())
sketch13.addGeometry([
    Part.ArcOfCircle(Part.Circle(Vector(-78.512685, -43.575331, 0), Vector(0, 0, 1), 2.54), math.radians(-90.000001), math.radians(0)),
    Part.ArcOfCircle(Part.Circle(Vector(-78.512685, -43.575331, 0), Vector(0, 0, 1), 2.54), math.radians(0), math.radians(180)),
    Part.LineSegment(Vector(-81.052685, -43.575331, 0), Vector(-81.052685, -39.175922, 0)),
    Part.ArcOfCircle(Part.Circle(Vector(-78.512685, -43.575331, 0), Vector(0, 0, 1), 5.08), math.radians(0), math.radians(120)),
    Part.ArcOfCircle(Part.Circle(Vector(-78.512685, -43.575331, 0), Vector(0, 0, 1), 5.08), math.radians(-30), math.radians(0)),
    Part.LineSegment(Vector(-74.113276, -46.115331, 0), Vector(-78.512685, -46.115331, 0)),
], False)
sketch13.addConstraint([
    Sketcher.Constraint("Tangent", 0, 2, 1, 1),
    Sketcher.Constraint("Tangent", 1, 2, 2, 1),
    Sketcher.Constraint("Coincident", 2, 2, 3, 2),
    Sketcher.Constraint("Tangent", 3, 1, 4, 2),
    Sketcher.Constraint("Coincident", 4, 1, 5, 1),
    Sketcher.Constraint("Tangent", 5, 2, 0, 1),
    Sketcher.Constraint("Vertical", 2),
    Sketcher.Constraint("Horizontal", 5),
    Sketcher.Constraint("Coincident", 3, 3, 0, 3),
    Sketcher.Constraint("Equal", 0, 1),
    Sketcher.Constraint("Equal", 3, 4),
    Sketcher.Constraint("Horizontal", 4, 3, 0, 2),
    Sketcher.Constraint("Horizontal", 1, 2, 3, 1),
    Sketcher.Constraint("Radius", 0, Q("0.1 in")),
    Sketcher.Constraint("Radius", 3, Q("0.2 in")),
    Sketcher.Constraint("DistanceY", 0, 3, -1, 1, 43.575331),
    Sketcher.Constraint("DistanceX", 0, 3, -1, 1, 78.512685),
])
pad11 = body9.newObject("PartDesign::Pad", "Pad010")
pad11.Profile = sketch13
pad11.Length = Q("1.3 in")

doc.recompute()
